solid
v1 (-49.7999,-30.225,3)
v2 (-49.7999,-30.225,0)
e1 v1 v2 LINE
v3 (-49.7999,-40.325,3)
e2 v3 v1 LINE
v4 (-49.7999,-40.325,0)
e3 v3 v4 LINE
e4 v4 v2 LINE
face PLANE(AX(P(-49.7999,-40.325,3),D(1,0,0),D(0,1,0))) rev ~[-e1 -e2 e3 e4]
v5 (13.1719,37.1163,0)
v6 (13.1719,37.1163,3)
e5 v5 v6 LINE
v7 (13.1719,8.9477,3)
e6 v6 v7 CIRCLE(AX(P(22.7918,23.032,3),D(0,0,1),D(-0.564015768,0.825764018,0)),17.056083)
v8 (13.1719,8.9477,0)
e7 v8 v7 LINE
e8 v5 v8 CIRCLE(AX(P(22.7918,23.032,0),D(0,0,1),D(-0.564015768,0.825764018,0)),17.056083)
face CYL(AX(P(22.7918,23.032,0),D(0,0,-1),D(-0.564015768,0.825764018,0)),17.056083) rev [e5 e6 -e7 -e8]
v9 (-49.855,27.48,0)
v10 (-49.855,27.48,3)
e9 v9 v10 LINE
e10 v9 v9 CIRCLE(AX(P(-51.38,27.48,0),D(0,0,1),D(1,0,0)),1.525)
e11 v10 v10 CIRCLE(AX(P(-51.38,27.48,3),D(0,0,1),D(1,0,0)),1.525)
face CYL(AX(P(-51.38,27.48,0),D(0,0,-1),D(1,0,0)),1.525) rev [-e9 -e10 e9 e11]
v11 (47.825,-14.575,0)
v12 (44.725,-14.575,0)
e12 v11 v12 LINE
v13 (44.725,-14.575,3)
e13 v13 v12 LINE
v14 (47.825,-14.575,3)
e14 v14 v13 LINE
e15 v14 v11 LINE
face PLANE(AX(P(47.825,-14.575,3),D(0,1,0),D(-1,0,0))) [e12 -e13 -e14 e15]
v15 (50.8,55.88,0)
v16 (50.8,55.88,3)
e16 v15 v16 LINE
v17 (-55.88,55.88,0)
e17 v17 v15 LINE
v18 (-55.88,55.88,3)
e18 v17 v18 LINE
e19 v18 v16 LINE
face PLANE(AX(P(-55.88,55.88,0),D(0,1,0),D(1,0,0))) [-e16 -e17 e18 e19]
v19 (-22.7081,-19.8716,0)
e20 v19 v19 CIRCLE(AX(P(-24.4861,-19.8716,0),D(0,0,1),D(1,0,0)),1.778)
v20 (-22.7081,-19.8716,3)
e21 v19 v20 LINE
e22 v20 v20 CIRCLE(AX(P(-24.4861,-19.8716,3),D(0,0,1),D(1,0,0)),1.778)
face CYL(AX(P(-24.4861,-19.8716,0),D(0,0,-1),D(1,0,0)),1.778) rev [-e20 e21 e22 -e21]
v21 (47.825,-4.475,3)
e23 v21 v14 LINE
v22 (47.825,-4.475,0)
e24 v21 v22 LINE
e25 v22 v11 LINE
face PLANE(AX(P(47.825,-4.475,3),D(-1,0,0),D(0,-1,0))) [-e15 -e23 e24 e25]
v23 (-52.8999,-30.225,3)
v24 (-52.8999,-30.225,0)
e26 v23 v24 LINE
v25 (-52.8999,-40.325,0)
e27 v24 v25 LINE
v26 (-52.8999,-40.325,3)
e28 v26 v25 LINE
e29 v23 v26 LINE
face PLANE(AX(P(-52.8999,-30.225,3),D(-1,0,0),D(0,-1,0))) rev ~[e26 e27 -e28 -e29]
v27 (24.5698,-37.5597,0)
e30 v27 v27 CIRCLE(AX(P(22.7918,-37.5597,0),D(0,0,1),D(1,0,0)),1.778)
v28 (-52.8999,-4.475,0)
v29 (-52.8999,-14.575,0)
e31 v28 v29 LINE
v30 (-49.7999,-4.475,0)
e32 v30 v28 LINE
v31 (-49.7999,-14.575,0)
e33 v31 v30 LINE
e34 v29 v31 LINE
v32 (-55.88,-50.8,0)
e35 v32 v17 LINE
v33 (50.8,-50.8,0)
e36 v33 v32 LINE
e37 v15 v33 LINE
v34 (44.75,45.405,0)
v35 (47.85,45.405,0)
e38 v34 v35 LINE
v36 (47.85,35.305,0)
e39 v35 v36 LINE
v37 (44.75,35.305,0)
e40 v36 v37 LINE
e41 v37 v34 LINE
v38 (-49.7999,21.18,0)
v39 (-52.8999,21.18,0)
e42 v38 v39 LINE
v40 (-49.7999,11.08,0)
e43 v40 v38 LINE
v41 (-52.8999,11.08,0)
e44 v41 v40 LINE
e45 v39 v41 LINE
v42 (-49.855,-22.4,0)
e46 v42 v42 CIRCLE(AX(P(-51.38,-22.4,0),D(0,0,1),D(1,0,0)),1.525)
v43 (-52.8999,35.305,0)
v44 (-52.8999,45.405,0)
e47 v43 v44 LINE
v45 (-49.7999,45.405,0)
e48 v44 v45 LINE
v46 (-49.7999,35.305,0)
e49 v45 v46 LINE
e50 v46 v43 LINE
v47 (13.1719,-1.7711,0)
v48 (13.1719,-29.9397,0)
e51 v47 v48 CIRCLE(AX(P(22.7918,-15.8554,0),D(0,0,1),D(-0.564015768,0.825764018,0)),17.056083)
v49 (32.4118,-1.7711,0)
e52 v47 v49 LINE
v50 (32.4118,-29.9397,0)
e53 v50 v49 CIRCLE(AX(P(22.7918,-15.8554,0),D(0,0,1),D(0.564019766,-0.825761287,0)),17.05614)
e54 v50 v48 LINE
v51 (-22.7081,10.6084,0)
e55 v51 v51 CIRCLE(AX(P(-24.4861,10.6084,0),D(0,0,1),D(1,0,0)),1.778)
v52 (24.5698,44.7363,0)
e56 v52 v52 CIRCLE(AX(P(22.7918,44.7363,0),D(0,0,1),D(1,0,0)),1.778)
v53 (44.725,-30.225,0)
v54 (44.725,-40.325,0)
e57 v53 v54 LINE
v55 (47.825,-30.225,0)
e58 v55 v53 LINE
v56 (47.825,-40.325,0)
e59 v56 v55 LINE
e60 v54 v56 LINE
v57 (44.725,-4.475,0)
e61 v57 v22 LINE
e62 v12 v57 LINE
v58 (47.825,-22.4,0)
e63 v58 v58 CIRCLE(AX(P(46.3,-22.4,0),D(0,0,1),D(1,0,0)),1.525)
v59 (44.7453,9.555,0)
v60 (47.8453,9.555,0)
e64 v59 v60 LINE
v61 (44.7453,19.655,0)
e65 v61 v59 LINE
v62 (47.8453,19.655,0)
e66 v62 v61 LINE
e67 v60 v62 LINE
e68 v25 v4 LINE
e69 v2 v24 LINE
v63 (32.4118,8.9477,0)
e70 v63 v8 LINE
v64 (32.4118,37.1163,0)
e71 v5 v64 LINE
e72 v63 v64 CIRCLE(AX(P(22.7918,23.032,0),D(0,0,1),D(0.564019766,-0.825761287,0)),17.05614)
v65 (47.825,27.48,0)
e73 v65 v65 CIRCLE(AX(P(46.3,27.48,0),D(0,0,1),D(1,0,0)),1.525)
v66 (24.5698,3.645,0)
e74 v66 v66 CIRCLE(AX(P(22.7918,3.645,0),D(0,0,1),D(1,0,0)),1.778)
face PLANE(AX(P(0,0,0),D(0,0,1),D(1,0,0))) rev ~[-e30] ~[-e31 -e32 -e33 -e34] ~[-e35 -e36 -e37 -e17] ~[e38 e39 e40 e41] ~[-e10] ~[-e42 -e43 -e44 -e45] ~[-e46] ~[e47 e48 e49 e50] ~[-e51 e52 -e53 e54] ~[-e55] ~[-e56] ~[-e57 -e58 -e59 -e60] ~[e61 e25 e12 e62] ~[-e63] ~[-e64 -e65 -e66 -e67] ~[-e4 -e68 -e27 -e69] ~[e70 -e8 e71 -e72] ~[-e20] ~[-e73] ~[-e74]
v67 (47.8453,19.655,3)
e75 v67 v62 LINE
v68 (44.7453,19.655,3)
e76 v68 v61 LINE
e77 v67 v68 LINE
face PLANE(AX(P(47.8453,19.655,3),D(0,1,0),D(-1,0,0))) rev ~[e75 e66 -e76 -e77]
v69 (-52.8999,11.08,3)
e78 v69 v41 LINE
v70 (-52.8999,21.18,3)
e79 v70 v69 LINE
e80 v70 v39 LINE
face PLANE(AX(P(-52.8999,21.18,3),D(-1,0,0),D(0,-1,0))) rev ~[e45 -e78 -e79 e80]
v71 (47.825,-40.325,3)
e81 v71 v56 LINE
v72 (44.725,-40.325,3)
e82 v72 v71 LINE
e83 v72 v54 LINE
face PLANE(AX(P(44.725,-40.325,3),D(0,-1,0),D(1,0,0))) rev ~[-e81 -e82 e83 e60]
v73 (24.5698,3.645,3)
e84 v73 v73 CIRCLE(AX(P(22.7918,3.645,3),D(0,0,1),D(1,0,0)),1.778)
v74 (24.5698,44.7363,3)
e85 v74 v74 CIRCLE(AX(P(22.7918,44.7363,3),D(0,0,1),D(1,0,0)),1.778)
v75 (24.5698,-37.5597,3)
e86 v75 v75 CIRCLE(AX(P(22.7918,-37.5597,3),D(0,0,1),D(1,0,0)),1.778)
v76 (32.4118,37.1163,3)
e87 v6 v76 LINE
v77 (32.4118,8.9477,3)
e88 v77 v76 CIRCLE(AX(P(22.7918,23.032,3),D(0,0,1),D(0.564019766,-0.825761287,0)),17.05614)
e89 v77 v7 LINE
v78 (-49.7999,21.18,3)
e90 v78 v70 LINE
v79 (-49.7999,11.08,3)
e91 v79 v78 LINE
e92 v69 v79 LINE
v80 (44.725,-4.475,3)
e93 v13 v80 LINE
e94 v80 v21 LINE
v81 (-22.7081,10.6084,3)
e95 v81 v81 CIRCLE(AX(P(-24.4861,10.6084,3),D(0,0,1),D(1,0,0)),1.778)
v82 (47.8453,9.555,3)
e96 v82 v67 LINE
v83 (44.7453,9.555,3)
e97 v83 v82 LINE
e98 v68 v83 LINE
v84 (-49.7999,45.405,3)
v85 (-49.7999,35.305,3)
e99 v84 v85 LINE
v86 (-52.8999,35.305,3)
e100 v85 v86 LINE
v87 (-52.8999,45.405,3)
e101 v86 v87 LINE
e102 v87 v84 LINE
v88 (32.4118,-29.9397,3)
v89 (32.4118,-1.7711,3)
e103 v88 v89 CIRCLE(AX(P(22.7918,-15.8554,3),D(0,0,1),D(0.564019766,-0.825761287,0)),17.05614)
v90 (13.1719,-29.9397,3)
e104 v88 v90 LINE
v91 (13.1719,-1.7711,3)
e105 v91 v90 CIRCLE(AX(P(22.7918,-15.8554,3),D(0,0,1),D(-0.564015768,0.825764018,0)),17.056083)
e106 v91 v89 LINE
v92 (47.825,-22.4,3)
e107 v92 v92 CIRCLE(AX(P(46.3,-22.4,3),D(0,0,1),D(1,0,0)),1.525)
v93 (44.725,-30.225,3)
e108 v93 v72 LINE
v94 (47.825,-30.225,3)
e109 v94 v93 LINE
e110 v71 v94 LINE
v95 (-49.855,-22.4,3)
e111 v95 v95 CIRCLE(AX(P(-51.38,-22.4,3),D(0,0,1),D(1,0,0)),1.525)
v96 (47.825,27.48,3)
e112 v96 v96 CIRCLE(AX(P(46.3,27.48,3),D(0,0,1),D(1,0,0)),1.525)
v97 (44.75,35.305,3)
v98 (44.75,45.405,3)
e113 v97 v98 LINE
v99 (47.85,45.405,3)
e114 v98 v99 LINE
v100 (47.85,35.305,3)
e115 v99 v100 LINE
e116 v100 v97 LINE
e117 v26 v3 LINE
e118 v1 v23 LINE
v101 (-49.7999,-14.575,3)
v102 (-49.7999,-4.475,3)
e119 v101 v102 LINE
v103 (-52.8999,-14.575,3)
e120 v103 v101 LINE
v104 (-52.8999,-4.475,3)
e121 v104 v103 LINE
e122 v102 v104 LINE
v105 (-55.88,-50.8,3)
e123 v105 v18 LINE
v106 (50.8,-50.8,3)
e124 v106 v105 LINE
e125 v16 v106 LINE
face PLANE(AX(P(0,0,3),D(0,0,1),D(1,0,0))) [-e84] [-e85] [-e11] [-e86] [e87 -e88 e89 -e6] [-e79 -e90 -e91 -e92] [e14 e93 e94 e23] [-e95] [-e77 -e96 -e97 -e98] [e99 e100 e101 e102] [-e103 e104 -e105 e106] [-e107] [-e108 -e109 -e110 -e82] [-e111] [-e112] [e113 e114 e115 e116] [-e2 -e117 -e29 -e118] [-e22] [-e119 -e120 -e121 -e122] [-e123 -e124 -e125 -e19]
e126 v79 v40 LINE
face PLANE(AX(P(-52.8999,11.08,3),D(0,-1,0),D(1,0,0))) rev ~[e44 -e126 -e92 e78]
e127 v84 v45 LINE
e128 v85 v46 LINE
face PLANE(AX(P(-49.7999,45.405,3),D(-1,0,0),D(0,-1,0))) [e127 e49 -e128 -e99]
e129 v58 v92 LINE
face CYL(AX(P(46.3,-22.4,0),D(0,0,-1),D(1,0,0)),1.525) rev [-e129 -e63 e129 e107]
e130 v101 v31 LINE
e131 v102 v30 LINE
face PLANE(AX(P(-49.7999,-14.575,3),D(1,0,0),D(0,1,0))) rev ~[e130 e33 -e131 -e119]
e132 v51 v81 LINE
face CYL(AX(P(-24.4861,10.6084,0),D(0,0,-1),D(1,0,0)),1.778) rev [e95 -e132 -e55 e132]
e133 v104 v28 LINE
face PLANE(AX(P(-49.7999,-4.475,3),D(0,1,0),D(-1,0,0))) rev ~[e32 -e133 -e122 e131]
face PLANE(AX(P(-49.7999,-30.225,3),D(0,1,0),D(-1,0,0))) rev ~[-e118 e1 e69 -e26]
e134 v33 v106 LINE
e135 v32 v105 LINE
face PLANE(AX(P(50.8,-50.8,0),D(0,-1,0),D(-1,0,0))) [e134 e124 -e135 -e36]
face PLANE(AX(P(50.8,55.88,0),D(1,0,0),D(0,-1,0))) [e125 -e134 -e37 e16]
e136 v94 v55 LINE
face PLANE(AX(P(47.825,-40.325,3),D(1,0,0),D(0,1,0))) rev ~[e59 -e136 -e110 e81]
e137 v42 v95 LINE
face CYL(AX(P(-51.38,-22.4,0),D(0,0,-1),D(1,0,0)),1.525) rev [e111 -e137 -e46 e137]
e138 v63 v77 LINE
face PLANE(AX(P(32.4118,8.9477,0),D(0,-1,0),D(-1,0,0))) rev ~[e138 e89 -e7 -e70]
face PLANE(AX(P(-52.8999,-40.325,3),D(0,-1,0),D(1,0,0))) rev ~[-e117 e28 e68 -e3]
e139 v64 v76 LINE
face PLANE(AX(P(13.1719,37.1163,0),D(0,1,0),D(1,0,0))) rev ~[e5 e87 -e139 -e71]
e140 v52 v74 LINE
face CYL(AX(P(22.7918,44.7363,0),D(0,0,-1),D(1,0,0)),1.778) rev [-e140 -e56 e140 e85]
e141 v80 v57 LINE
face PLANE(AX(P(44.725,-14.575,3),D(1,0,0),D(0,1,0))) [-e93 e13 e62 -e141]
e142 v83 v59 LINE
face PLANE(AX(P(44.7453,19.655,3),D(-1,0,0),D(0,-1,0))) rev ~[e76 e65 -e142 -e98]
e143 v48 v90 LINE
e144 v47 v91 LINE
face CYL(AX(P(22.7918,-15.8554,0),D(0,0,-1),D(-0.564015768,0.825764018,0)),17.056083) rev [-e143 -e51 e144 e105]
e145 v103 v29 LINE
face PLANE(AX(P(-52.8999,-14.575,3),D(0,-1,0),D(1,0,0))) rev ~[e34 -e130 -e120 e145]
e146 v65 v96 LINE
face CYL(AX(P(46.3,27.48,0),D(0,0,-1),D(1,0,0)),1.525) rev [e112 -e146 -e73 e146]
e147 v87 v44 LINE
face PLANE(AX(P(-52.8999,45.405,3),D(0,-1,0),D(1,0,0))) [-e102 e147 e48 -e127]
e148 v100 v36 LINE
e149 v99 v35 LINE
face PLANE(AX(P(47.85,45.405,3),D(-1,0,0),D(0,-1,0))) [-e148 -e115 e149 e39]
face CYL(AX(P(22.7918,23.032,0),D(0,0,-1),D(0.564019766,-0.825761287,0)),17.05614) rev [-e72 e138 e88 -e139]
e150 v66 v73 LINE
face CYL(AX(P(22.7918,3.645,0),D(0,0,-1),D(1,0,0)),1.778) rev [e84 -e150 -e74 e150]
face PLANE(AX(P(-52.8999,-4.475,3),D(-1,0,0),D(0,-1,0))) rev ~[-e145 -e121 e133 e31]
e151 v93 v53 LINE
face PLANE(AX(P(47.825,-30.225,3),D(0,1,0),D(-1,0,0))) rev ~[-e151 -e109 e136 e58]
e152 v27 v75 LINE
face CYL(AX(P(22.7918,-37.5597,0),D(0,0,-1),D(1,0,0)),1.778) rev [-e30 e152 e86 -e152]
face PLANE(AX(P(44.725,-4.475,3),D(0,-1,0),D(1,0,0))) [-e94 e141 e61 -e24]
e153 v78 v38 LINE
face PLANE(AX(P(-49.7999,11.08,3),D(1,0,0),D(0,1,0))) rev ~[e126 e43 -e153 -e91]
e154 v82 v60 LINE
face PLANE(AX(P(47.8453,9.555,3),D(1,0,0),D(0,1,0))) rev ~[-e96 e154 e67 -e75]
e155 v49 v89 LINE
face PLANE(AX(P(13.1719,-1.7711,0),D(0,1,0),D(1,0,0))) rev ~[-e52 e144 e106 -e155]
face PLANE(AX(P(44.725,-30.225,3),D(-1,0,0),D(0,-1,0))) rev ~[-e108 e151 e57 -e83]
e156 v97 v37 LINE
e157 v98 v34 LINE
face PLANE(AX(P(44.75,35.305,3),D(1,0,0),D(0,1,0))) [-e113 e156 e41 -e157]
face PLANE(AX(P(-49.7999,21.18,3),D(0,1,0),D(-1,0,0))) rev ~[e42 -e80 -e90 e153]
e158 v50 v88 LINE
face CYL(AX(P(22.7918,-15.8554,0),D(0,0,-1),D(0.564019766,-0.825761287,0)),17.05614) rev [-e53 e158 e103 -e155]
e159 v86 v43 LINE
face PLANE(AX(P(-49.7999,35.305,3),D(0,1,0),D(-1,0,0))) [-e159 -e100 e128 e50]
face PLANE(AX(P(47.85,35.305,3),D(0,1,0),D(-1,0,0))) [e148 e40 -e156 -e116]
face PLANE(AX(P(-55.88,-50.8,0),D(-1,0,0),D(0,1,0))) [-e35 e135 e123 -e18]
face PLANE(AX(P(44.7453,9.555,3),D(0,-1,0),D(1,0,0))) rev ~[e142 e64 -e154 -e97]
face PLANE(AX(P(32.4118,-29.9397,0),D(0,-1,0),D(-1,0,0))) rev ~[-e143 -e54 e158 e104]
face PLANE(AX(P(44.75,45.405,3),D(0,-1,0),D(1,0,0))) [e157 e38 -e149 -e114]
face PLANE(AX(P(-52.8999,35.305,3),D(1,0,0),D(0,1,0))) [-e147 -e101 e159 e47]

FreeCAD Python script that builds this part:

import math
import FreeCAD as App
import Part
import Sketcher

V = App.Vector
Q = App.Units.Quantity


def add_polygon(sketch, points):
    """Adds a closed chain of lines whose ends are joined by coincident constraints."""
    first, n = sketch.GeometryCount, len(points)
    for a, b in zip(points, points[1:] + points[:1]):
        sketch.addGeometry(Part.LineSegment(App.Vector(*a, 0), App.Vector(*b, 0)), False)
    for i in range(n):
        sketch.addConstraint(Sketcher.Constraint("Coincident", first + i, 2, first + (i + 1) % n, 1))

doc = App.newDocument("Part")
body = doc.addObject("PartDesign::Body", "Body")

sketch1 = body.newObject("Sketcher::SketchObject", "Sketch")
sketch1.AttachmentSupport = (doc.getObject("XY_Plane"), [""])
sketch1.MapMode = "FlatFace"
add_polygon(sketch1, [(50.8, 55.88), (-55.88, 55.88), (-55.88, -50.8), (50.8, -50.8)])
sketch1.addGeometry(Part.Circle(V(-51.38, -22.4, 0), V(0, 0, 1), 1.525), False)
sketch1.addGeometry(Part.Circle(V(-24.4861, -19.8716, 0), V(0, 0, 1), 1.778), False)
sketch1.addGeometry(Part.Circle(V(22.7918, -37.5597, 0), V(0, 0, 1), 1.778), False)
sketch1.addGeometry(Part.ArcOfCircle(Part.Circle(V(22.7918, -15.8554, 0), V(0, 0, 1), 17.056083), math.radians(124.333972), math.radians(235.666028)), False)
sketch1.addGeometry(Part.LineSegment(V(13.1719, -1.7711, 0), V(32.4118, -1.7711, 0)), False)
sketch1.addGeometry(Part.ArcOfCircle(Part.Circle(V(22.7918, -15.8554, 0), V(0, 0, 1), 17.05614), math.radians(-55.66575), math.radians(55.66575)), False)
sketch1.addGeometry(Part.LineSegment(V(32.4118, -29.9397, 0), V(13.1719, -29.9397, 0)), False)
sketch1.addGeometry(Part.Circle(V(46.3, -22.4, 0), V(0, 0, 1), 1.525), False)
sketch1.addGeometry(Part.Circle(V(-51.38, 27.48, 0), V(0, 0, 1), 1.525), False)
sketch1.addGeometry(Part.Circle(V(-24.4861, 10.6084, 0), V(0, 0, 1), 1.778), False)
sketch1.addGeometry(Part.Circle(V(22.7918, 3.645, 0), V(0, 0, 1), 1.778), False)
sketch1.addGeometry(Part.ArcOfCircle(Part.Circle(V(22.7918, 23.032, 0), V(0, 0, 1), 17.056083), math.radians(124.333972), math.radians(235.666028)), False)
sketch1.addGeometry(Part.LineSegment(V(13.1719, 37.1163, 0), V(32.4118, 37.1163, 0)), False)
sketch1.addGeometry(Part.ArcOfCircle(Part.Circle(V(22.7918, 23.032, 0), V(0, 0, 1), 17.05614), math.radians(-55.66575), math.radians(55.66575)), False)
sketch1.addGeometry(Part.LineSegment(V(32.4118, 8.9477, 0), V(13.1719, 8.9477, 0)), False)
sketch1.addGeometry(Part.Circle(V(46.3, 27.48, 0), V(0, 0, 1), 1.525), False)
sketch1.addGeometry(Part.Circle(V(22.7918, 44.7363, 0), V(0, 0, 1), 1.778), False)
sketch1.addConstraint([
    Sketcher.Constraint("Coincident", 7, 1, 8, 1),
    Sketcher.Constraint("Coincident", 8, 2, 9, 2),
    Sketcher.Constraint("Coincident", 9, 1, 10, 1),
    Sketcher.Constraint("Coincident", 10, 2, 7, 2),
    Sketcher.Constraint("Coincident", 15, 1, 16, 1),
    Sketcher.Constraint("Coincident", 16, 2, 17, 2),
    Sketcher.Constraint("Coincident", 17, 1, 18, 1),
    Sketcher.Constraint("Coincident", 18, 2, 15, 2),
    Sketcher.Constraint("Horizontal", 0),
    Sketcher.Constraint("Vertical", 1),
    Sketcher.Constraint("Horizontal", 2),
    Sketcher.Constraint("Vertical", 3),
    Sketcher.Constraint("Horizontal", 8),
    Sketcher.Constraint("Horizontal", 10),
    Sketcher.Constraint("Horizontal", 16),
    Sketcher.Constraint("Horizontal", 18),
    Sketcher.Constraint("Coincident", 9, 3, 7, 3),
    Sketcher.Constraint("Coincident", 17, 3, 15, 3),
    Sketcher.Constraint("Equal", 5, 6),
    Sketcher.Constraint("Equal", 7, 9),
    Sketcher.Constraint("Equal", 4, 11),
    Sketcher.Constraint("Equal", 11, 12),
    Sketcher.Constraint("Equal", 6, 13),
    Sketcher.Constraint("Equal", 13, 14),
    Sketcher.Constraint("Equal", 9, 15),
    Sketcher.Constraint("Equal", 15, 17),
    Sketcher.Constraint("Equal", 12, 19),
    Sketcher.Constraint("Equal", 14, 20),
    Sketcher.Constraint("Horizontal", 4, 3, 11, 3),
    Sketcher.Constraint("Horizontal", 12, 3, 19, 3),
    Sketcher.Constraint("Vertical", 6, 3, 7, 3),
    Sketcher.Constraint("Vertical", 4, 3, 12, 3),
    Sketcher.Constraint("Vertical", 5, 3, 13, 3),
    Sketcher.Constraint("Vertical", 9, 3, 14, 3),
    Sketcher.Constraint("Vertical", 14, 3, 15, 3),
    Sketcher.Constraint("Vertical", 11, 3, 19, 3),
    Sketcher.Constraint("Vertical", 17, 3, 20, 3),
    Sketcher.Constraint("Vertical", 8, 2, 9, 1),
    Sketcher.Constraint("Vertical", 10, 2, 15, 1),
    Sketcher.Constraint("Vertical", 16, 2, 17, 1),
    Sketcher.Constraint("Equal", 2, 1),
    Sketcher.Constraint("Diameter", 5, Q("0.14 in")),
    Sketcher.Constraint("DistanceX", 0, 2, 0, 1, Q("4.2 in")),
    Sketcher.Constraint("DistanceY", 5, 3, 13, 3, Q("1.2 in")),
    Sketcher.Constraint("Diameter", 4, 3.05),
    Sketcher.Constraint("DistanceY", 1, 2, -1, 1, Q("2 in")),
    Sketcher.Constraint("DistanceX", -1, 1, 2, 2, Q("2 in")),
    Sketcher.Constraint("DistanceY", 10, 2, 7, 1, Q("1.109 in")),
    Sketcher.Constraint("Radius", 7, Q("0.6715 in")),
    Sketcher.Constraint("DistanceY", 12, 3, 0, 2, Q("1.1181 in")),
    Sketcher.Constraint("DistanceY", 1, 2, 4, 3, Q("1.1181 in")),
    Sketcher.Constraint("DistanceY", 6, 3, 9, 1, Q("0.3 in")),
    Sketcher.Constraint("DistanceY", 15, 1, 20, 3, Q("0.3 in")),
    Sketcher.Constraint("DistanceX", 0, 2, 12, 3, 4.5),
    Sketcher.Constraint("DistanceX", 11, 3, 2, 2, 4.5),
    Sketcher.Constraint("DistanceY", 7, 3, 15, 3, Q("1.531 in")),
    Sketcher.Constraint("DistanceY", -1, 1, 14, 3, Q("0.1435 in")),
    Sketcher.Constraint("DistanceX", 5, 3, -1, 1, 24.486),
    Sketcher.Constraint("DistanceY", 5, 3, -1, 1, 19.8716),
    Sketcher.Constraint("DistanceX", -1, 1, 6, 3, 22.7918),
    Sketcher.Constraint("DistanceY", 6, 3, -1, 1, 37.5597),
])
pad1 = body.newObject("PartDesign::Pad", "Pad")
pad1.Profile = sketch1
pad1.Length = Q("0.1181102 in")

sketch2 = body.newObject("Sketcher::SketchObject", "Sketch001")
sketch2.AttachmentSupport = (doc.getObject("XY_Plane"), [""])
sketch2.MapMode = "FlatFace"
sketch2.AttachmentOffset = App.Placement(V(0, 0, 0.1181102 * 25.4), App.Rotation())
add_polygon(sketch2, [(-52.8999, 35.305), (-49.7999, 35.305), (-49.7999, 45.405), (-52.8999, 45.405)])
add_polygon(sketch2, [(-49.7999, 11.08), (-49.7999, 21.18), (-52.8999, 21.18), (-52.8999, 11.08)])
add_polygon(sketch2, [(-49.7999, -14.575), (-49.7999, -4.475), (-52.8999, -4.475), (-52.8999, -14.575)])
add_polygon(sketch2, [(-49.7999, -40.325), (-49.7999, -30.225), (-52.8999, -30.225), (-52.8999, -40.325)])
add_polygon(sketch2, [(47.825, -40.325), (47.825, -30.225), (44.725, -30.225), (44.725, -40.325)])
add_polygon(sketch2, [(44.725, -14.575), (47.825, -14.575), (47.825, -4.475), (44.725, -4.475)])
add_polygon(sketch2, [(44.75, 35.305), (47.85, 35.305), (47.85, 45.405), (44.75, 45.405)])
add_polygon(sketch2, [(47.8453, 9.555), (47.8453, 19.655), (44.7453, 19.655), (44.7453, 9.555)])
sketch2.addConstraint([
    Sketcher.Constraint("Horizontal", 0),
    Sketcher.Constraint("Vertical", 1),
    Sketcher.Constraint("Horizontal", 2),
    Sketcher.Constraint("Vertical", 3),
    Sketcher.Constraint("Vertical", 4),
    Sketcher.Constraint("Horizontal", 5),
    Sketcher.Constraint("Vertical", 6),
    Sketcher.Constraint("Horizontal", 7),
    Sketcher.Constraint("Vertical", 8),
    Sketcher.Constraint("Horizontal", 9),
    Sketcher.Constraint("Vertical", 10),
    Sketcher.Constraint("Horizontal", 11),
    Sketcher.Constraint("Vertical", 12),
    Sketcher.Constraint("Horizontal", 13),
    Sketcher.Constraint("Vertical", 14),
    Sketcher.Constraint("Horizontal", 15),
    Sketcher.Constraint("Vertical", 16),
    Sketcher.Constraint("Horizontal", 17),
    Sketcher.Constraint("Vertical", 18),
    Sketcher.Constraint("Horizontal", 19),
    Sketcher.Constraint("Horizontal", 20),
    Sketcher.Constraint("Vertical", 21),
    Sketcher.Constraint("Horizontal", 22),
    Sketcher.Constraint("Vertical", 23),
    Sketcher.Constraint("Horizontal", 24),
    Sketcher.Constraint("Vertical", 25),
    Sketcher.Constraint("Horizontal", 26),
    Sketcher.Constraint("Vertical", 27),
    Sketcher.Constraint("Vertical", 28),
    Sketcher.Constraint("Horizontal", 29),
    Sketcher.Constraint("Vertical", 30),
    Sketcher.Constraint("Horizontal", 31),
    Sketcher.Constraint("Horizontal", 13, 2, 16, 2),
    Sketcher.Constraint("Horizontal", 15, 2, 18, 2),
    Sketcher.Constraint("Horizontal", 11, 2, 20, 2),
    Sketcher.Constraint("Horizontal", 9, 2, 21, 2),
    Sketcher.Constraint("Horizontal", 3, 2, 24, 2),
    Sketcher.Constraint("Horizontal", 2, 2, 25, 2),
    Sketcher.Constraint("Vertical", 1, 2, 4, 2),
    Sketcher.Constraint("Vertical", 3, 2, 5, 2),
    Sketcher.Constraint("Vertical", 7, 2, 8, 2),
    Sketcher.Constraint("Vertical", 6, 2, 9, 2),
    Sketcher.Constraint("Vertical", 11, 2, 12, 2),
    Sketcher.Constraint("Vertical", 10, 2, 13, 2),
    Sketcher.Constraint("Vertical", 19, 2, 20, 2),
    Sketcher.Constraint("Vertical", 18, 2, 22, 2),
    Sketcher.Constraint("Equal", 15, 17),
    Sketcher.Constraint("Equal", 22, 24),
    Sketcher.Constraint("Equal", 26, 29),
    Sketcher.Constraint("Equal", 3, 4),
    Sketcher.Constraint("Equal", 6, 8),
    Sketcher.Constraint("Equal", 10, 12),
    Sketcher.Constraint("Equal", 27, 28),
    Sketcher.Constraint("DistanceX", 0, 1, 0, 2, 3.1),
    Sketcher.Constraint("DistanceY", 1, 1, 1, 2, 10.1),
    Sketcher.Constraint("DistanceY", 21, 2, 28, 2, Q("0.95 in")),
    Sketcher.Constraint("DistanceY", -1, 1, 1, 2, Q("1.7876 in")),
    Sketcher.Constraint("DistanceY", 14, 2, -1, 1, Q("1.5876 in")),
    Sketcher.Constraint("DistanceX", -1, 1, 26, 2, Q("1.7618 in")),
    Sketcher.Constraint("DistanceY", 4, 2, 0, 2, Q("0.5561 in")),
    Sketcher.Constraint("DistanceY", 8, 2, 7, 2, Q("0.6124 in")),
    Sketcher.Constraint("DistanceX", 12, 2, 16, 2, Q("3.8435 in")),
    Sketcher.Constraint("DistanceX", 21, 2, 28, 2, Q("0.0008 in")),
    Sketcher.Constraint("DistanceX", 0, 2, -1, 1, 49.8),
])
pocket1 = body.newObject("PartDesign::Pocket", "Pocket")
pocket1.Profile = sketch2
pocket1.Type = "ThroughAll"

doc.recompute()
